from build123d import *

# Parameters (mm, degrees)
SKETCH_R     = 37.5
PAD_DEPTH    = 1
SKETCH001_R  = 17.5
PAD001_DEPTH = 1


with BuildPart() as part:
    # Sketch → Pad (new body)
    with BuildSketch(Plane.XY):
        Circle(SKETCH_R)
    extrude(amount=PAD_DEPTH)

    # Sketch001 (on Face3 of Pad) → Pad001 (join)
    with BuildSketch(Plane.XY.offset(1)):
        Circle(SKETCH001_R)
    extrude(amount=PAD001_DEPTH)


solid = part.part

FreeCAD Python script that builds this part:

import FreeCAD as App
import Part
import Sketcher
Q = App.Units.Quantity

doc = App.newDocument("Part")
body = doc.addObject("PartDesign::Body", "Body")

sketch1 = body.newObject("Sketcher::SketchObject", "Sketch")
sketch1.AttachmentSupport = (doc.getObject("XY_Plane"), [""])
sketch1.MapMode = "FlatFace"
sketch1.addGeometry(Part.Circle(App.Vector(0, 0, 0), App.Vector(0, 0, 1), 38), False)
sketch1.addConstraint([
    Sketcher.Constraint("Coincident", 0, 3, -1, 1),
    Sketcher.Constraint("Diameter", 0, Q("75 mm")),
])
pad1 = body.newObject("PartDesign::Pad", "Pad")
pad1.Profile = sketch1
pad1.Length = 1

sketch2 = body.newObject("Sketcher::SketchObject", "Sketch001")
sketch2.AttachmentSupport = (doc.getObject("XY_Plane"), [""])
sketch2.MapMode = "FlatFace"
sketch2.AttachmentOffset = App.Placement(App.Vector(0, 0, 1), App.Rotation())
sketch2.addGeometry(Part.Circle(App.Vector(0, 0, 0), App.Vector(0, 0, 1), 18), False)
sketch2.addConstraint([
    Sketcher.Constraint("Coincident", 0, 3, -1, 1),
    Sketcher.Constraint("Diameter", 0, Q("35 mm")),
])
pad2 = body.newObject("PartDesign::Pad", "Pad001")
pad2.Profile = sketch2
pad2.Length = 1

doc.recompute()
